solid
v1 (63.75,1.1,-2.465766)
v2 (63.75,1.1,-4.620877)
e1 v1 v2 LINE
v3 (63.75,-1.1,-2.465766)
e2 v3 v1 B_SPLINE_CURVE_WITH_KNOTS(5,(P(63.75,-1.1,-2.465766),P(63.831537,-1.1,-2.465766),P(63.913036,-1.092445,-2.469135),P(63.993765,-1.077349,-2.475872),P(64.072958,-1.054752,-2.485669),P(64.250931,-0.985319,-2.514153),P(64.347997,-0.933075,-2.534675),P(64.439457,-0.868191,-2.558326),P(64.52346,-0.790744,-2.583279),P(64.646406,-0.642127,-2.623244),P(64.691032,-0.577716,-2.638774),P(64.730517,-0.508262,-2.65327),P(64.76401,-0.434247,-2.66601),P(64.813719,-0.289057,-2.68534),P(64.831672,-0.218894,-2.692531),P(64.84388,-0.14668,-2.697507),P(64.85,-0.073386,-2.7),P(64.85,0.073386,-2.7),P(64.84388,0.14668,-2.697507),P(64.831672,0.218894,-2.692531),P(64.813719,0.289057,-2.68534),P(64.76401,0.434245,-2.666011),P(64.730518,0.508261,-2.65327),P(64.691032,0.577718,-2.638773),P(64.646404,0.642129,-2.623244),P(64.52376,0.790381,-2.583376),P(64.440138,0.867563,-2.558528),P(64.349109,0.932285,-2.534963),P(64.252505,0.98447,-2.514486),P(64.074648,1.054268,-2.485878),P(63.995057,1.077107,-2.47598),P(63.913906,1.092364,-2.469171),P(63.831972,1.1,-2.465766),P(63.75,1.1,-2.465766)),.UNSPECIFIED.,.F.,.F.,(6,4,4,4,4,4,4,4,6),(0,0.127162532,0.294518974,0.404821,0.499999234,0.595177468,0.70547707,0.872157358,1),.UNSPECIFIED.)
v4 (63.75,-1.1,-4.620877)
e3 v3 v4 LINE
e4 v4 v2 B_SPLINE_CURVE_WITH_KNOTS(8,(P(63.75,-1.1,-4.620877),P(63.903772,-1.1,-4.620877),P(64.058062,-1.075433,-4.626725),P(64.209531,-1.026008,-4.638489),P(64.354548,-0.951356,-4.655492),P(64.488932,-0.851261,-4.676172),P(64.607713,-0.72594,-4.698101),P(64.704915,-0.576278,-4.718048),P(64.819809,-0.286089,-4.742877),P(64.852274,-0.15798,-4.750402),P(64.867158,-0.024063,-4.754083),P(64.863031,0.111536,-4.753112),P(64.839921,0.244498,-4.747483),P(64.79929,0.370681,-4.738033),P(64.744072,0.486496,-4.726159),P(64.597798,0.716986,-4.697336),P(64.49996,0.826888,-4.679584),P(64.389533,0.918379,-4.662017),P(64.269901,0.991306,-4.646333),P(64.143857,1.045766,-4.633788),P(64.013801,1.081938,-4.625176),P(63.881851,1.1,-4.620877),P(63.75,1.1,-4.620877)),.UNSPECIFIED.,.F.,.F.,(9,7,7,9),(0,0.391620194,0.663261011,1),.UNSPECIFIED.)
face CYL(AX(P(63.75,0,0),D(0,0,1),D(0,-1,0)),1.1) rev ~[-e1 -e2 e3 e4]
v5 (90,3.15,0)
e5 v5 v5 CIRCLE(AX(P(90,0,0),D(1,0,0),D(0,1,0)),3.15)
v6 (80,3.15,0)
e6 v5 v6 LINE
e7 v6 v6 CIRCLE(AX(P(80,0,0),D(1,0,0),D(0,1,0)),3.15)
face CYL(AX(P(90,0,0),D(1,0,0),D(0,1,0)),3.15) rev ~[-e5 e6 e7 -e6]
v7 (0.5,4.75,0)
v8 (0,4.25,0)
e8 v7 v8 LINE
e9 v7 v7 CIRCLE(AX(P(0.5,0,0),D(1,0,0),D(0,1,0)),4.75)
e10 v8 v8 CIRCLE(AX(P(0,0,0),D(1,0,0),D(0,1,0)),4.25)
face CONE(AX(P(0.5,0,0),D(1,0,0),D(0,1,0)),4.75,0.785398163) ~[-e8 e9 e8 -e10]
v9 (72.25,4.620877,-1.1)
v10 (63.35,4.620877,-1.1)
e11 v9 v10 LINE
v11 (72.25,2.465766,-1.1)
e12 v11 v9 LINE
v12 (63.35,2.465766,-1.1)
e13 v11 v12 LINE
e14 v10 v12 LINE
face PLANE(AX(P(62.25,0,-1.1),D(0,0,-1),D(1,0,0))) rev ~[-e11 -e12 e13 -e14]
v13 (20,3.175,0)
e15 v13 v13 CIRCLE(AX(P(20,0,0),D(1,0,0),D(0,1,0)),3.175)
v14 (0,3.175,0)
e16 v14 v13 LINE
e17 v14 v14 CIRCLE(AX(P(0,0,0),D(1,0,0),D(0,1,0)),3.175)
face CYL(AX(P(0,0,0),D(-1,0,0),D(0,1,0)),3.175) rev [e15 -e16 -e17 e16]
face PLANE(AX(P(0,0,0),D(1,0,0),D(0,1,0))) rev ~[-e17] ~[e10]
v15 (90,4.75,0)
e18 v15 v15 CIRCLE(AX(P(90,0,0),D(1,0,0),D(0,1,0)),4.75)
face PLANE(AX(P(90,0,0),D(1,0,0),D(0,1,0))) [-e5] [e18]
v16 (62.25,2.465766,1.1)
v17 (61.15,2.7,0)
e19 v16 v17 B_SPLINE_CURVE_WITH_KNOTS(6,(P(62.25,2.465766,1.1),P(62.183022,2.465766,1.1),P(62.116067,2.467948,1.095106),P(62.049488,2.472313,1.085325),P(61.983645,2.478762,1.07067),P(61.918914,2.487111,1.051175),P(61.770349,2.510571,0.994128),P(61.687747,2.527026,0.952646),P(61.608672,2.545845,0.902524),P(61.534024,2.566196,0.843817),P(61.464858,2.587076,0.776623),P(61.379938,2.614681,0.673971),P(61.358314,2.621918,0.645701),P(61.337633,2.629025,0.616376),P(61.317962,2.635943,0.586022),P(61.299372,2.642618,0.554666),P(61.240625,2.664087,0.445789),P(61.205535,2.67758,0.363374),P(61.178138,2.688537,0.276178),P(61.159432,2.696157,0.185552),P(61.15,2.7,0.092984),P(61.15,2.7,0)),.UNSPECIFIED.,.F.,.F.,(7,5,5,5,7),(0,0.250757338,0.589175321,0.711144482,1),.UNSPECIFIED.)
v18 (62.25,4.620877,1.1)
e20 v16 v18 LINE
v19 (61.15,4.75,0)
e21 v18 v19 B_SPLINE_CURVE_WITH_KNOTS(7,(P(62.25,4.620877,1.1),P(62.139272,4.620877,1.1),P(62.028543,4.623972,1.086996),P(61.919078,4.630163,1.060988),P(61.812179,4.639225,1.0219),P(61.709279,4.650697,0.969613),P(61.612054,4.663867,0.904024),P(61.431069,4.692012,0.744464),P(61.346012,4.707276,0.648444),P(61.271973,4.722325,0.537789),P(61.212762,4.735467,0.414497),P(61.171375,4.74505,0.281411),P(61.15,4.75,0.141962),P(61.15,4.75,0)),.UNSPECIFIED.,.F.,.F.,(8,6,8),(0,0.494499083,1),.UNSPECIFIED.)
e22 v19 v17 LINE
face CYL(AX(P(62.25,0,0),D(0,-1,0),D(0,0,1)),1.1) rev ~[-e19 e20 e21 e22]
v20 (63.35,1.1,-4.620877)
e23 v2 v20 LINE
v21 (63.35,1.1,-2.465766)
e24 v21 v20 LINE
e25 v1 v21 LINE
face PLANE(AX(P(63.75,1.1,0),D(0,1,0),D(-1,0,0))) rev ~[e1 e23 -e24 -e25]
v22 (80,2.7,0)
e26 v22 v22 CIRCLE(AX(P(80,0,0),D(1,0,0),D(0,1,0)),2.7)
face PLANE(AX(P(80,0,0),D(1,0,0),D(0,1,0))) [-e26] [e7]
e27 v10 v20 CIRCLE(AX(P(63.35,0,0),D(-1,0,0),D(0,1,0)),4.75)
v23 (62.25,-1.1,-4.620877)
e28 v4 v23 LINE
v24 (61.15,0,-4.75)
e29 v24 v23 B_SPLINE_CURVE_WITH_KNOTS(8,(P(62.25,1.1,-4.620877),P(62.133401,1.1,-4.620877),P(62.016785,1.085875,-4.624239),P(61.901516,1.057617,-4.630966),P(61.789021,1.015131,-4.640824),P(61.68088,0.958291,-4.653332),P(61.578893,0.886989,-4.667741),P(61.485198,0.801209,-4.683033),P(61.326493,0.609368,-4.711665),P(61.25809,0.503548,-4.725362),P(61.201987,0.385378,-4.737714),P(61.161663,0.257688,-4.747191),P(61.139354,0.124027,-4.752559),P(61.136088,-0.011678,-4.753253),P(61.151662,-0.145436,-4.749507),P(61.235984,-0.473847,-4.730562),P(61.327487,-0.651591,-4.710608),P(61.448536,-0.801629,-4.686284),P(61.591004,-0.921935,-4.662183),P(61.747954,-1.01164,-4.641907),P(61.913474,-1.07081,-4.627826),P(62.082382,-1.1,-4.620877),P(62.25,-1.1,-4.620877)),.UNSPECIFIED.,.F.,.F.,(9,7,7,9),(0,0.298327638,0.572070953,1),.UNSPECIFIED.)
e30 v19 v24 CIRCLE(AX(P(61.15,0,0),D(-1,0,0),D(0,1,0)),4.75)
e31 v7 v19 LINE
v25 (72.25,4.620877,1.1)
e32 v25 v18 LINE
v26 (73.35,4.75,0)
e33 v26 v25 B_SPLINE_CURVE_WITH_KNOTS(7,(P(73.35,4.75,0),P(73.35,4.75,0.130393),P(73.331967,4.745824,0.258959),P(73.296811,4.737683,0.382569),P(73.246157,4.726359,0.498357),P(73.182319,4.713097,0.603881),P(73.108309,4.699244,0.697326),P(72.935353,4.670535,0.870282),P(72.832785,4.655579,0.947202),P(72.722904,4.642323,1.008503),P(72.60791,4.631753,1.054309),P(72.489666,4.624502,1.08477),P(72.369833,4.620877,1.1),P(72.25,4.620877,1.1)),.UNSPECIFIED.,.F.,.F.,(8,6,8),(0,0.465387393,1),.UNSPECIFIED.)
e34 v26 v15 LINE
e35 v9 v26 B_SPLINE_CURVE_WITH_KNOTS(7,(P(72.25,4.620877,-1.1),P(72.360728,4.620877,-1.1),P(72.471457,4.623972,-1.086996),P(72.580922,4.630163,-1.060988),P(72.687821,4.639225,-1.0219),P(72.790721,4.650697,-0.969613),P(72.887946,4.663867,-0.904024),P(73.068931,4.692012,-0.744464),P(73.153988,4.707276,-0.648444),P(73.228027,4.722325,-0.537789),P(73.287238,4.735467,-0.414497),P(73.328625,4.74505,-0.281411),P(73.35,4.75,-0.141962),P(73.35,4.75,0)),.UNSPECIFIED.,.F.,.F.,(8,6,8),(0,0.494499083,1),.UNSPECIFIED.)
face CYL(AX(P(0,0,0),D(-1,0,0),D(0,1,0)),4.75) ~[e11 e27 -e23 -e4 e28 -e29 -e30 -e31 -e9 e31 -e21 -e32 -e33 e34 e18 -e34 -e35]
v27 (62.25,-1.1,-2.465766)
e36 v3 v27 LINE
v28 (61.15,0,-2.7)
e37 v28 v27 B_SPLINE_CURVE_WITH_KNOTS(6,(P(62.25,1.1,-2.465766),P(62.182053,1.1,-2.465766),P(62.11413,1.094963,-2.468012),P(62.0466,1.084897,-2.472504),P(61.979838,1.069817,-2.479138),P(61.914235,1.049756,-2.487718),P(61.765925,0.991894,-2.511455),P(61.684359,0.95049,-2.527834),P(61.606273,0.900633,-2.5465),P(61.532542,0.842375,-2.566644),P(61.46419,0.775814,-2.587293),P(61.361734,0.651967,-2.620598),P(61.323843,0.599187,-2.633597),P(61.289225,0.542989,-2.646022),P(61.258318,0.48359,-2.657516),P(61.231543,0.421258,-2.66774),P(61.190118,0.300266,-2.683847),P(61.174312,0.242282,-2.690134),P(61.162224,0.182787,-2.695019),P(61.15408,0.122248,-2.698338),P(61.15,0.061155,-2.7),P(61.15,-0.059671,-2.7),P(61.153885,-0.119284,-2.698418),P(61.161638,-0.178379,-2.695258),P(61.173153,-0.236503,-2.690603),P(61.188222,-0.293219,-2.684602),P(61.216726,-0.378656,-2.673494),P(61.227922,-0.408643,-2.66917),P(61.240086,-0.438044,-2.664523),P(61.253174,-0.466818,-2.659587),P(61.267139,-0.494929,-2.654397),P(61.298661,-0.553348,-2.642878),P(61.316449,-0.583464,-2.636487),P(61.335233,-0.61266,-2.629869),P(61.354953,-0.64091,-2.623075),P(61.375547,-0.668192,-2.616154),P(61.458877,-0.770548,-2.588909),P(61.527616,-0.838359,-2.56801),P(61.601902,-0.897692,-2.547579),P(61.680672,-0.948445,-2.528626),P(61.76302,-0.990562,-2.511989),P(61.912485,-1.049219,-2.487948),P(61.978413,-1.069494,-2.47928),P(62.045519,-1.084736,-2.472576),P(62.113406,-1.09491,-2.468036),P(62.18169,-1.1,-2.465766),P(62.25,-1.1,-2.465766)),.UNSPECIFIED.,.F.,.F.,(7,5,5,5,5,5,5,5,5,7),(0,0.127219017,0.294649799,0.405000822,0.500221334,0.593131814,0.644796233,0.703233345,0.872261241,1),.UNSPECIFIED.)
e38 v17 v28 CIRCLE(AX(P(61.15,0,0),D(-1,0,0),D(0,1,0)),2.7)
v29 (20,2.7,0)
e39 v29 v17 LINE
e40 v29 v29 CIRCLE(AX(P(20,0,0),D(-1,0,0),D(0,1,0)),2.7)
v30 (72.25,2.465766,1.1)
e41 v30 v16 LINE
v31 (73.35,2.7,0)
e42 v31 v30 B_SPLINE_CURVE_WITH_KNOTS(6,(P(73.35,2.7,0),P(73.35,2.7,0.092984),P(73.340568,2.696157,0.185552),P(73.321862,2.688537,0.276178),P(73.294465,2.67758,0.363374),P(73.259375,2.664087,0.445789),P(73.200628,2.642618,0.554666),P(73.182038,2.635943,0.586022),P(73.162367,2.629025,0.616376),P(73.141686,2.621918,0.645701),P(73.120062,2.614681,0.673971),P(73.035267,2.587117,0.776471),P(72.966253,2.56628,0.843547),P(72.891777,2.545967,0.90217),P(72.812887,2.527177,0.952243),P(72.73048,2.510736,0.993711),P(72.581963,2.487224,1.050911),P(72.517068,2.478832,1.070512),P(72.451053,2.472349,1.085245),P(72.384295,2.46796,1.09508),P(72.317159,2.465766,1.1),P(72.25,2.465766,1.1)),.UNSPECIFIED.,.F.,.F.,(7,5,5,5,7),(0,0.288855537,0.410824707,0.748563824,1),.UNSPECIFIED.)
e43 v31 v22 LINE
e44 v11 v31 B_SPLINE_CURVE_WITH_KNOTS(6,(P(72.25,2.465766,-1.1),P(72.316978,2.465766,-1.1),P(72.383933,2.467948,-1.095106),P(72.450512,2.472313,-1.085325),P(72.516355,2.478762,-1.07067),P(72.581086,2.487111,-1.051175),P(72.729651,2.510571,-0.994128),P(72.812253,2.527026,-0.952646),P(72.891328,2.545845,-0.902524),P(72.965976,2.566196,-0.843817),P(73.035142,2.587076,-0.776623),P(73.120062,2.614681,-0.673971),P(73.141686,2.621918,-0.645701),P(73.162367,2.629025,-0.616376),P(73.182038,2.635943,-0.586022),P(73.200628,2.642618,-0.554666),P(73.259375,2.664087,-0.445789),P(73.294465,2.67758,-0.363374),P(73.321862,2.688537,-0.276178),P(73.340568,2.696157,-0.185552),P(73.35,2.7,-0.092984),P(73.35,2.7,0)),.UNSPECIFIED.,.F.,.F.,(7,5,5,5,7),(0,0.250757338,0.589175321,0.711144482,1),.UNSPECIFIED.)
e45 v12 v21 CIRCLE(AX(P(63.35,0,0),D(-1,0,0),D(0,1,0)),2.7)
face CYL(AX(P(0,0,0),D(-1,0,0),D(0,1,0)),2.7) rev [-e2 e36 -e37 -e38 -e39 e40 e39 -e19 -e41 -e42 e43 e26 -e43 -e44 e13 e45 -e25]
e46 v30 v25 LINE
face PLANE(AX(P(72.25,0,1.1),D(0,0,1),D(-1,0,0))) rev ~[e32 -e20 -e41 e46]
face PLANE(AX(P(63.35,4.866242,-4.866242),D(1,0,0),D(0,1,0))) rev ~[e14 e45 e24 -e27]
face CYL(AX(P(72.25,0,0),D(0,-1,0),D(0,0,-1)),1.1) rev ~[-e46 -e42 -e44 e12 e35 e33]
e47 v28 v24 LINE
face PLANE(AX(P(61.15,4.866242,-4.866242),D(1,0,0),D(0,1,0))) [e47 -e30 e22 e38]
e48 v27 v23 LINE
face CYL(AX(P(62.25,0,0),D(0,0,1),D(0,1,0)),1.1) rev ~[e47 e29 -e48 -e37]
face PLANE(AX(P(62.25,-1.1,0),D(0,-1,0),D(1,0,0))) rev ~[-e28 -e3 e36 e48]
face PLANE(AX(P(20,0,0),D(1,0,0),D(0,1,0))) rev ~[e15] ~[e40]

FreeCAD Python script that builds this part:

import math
import FreeCAD as App
import Part
import Sketcher
from FreeCAD import Vector


def edges_at(feature, points):
    """Names of the edges that pass closest to the given points."""
    edges = feature.Shape.Edges
    near = lambda p: min(range(len(edges)), key=lambda i: edges[i].distToShape(Part.Vertex(*p))[0])
    return sorted({f"Edge{near(p) + 1}" for p in points})

doc = App.newDocument("Part")
body = doc.addObject("PartDesign::Body", "Body")

# Sketch on YZ plane
sketch1 = body.newObject("Sketcher::SketchObject", "Sketch")
sketch1.AttachmentSupport = (doc.getObject("YZ_Plane"), [""])
sketch1.MapMode = "FlatFace"
sketch1.addGeometry(Part.Circle(Vector(0, 0, 0), Vector(0, 0, 1), 4.8), False)
sketch1.addConstraint([
    Sketcher.Constraint("Coincident", 0, 3, -1, 1),
    Sketcher.Constraint("Diameter", 0, 9.5),
])
pad1 = body.newObject("PartDesign::Pad", "Pad")
pad1.Profile = sketch1
pad1.Length = 90

# Sketch on YZ plane
sketch2 = body.newObject("Sketcher::SketchObject", "Sketch001")
sketch2.AttachmentSupport = (doc.getObject("YZ_Plane"), [""])
sketch2.MapMode = "FlatFace"
sketch2.addGeometry(Part.Circle(Vector(0, 0, 0), Vector(0, 0, 1), 2.7), False)
sketch2.addConstraint([
    Sketcher.Constraint("Coincident", 0, 3, -1, 1),
    Sketcher.Constraint("Diameter", 0, 5.4),
])
pocket1 = body.newObject("PartDesign::Pocket", "Pocket")
pocket1.Profile = sketch2
pocket1.Length = 100
pocket1.Reversed = True

# Sketch on YZ plane
sketch3 = body.newObject("Sketcher::SketchObject", "Sketch002")
sketch3.AttachmentSupport = (doc.getObject("YZ_Plane"), [""])
sketch3.MapMode = "FlatFace"
sketch3.addGeometry(Part.Circle(Vector(0, 0, 0), Vector(0, 0, 1), 3.2), False)
sketch3.addConstraint([
    Sketcher.Constraint("Coincident", 0, 3, -1, 1),
    Sketcher.Constraint("Diameter", 0, 6.35),
])
pocket2 = body.newObject("PartDesign::Pocket", "Pocket001")
pocket2.Profile = sketch3
pocket2.Length = 20
pocket2.Reversed = True

# Sketch on YZ plane
sketch4 = body.newObject("Sketcher::SketchObject", "Sketch003")
sketch4.AttachmentSupport = (doc.getObject("YZ_Plane"), [""])
sketch4.MapMode = "FlatFace"
sketch4.AttachmentOffset = App.Placement(Vector(0, 0, 90), App.Rotation())
sketch4.addGeometry([
    Part.Circle(Vector(0, 0, 0), Vector(0, 0, 1), 3.1),
    Part.Circle(Vector(0, 0, 0), Vector(0, 0, 1), 2.7),
], False)
sketch4.addConstraint([
    Sketcher.Constraint("Coincident", 0, 3, -1, 1),
    Sketcher.Constraint("Coincident", 1, 3, -1, 1),
    Sketcher.Constraint("Diameter", 0, 6.3),
    Sketcher.Constraint("Diameter", 1, 5.4),
])
pocket3 = body.newObject("PartDesign::Pocket", "Pocket002")
pocket3.Profile = sketch4
pocket3.Length = 10

# Sketch on XZ plane
sketch5 = body.newObject("Sketcher::SketchObject", "Sketch004")
sketch5.AttachmentSupport = (doc.getObject("XZ_Plane"), [""])
sketch5.MapMode = "FlatFace"
sketch5.addGeometry([
    Part.ArcOfCircle(Part.Circle(Vector(72.2, 0, 0), Vector(0, 0, 1), 1.1), math.radians(-90), math.radians(90)),
    Part.LineSegment(Vector(72.2, 1.1, 0), Vector(62.2, 1.1, 0)),
    Part.ArcOfCircle(Part.Circle(Vector(62.2, 0, 0), Vector(0, 0, 1), 1.1), math.radians(90), math.radians(270)),
    Part.LineSegment(Vector(62.2, -1.1, 0), Vector(72.2, -1.1, 0)),
], False)
sketch5.addConstraint([
    Sketcher.Constraint("Tangent", 0, 2, 1, 1),
    Sketcher.Constraint("Tangent", 1, 2, 2, 1),
    Sketcher.Constraint("Tangent", 2, 2, 3, 1),
    Sketcher.Constraint("Tangent", 3, 2, 0, 1),
    Sketcher.Constraint("Horizontal", 1),
    Sketcher.Constraint("Horizontal", 3),
    Sketcher.Constraint("PointOnObject", 0, 3, -1),
    Sketcher.Constraint("Radius", 0, 1.1),
    Sketcher.Constraint("DistanceX", 1, 2, 1, 1, 10.0),
    Sketcher.Constraint("DistanceX", -1, 1, 0, 3, 72.25),
])
pocket4 = body.newObject("PartDesign::Pocket", "Pocket003")
pocket4.Profile = sketch5
pocket4.Length = 25

# Sketch on XY plane
sketch6 = body.newObject("Sketcher::SketchObject", "Sketch005")
sketch6.AttachmentSupport = (doc.getObject("XY_Plane"), [""])
sketch6.MapMode = "FlatFace"
sketch6.addGeometry([
    Part.ArcOfCircle(Part.Circle(Vector(62.2, 0, 0), Vector(0, 0, 1), 1.1), math.radians(90), math.radians(270)),
    Part.LineSegment(Vector(62.2, -1.1, 0), Vector(63.8, -1.1, 0)),
    Part.ArcOfCircle(Part.Circle(Vector(63.8, 0, 0), Vector(0, 0, 1), 1.1), math.radians(-90), math.radians(90)),
    Part.LineSegment(Vector(63.8, 1.1, 0), Vector(62.2, 1.1, 0)),
], False)
sketch6.addConstraint([
    Sketcher.Constraint("Tangent", 0, 2, 1, 1),
    Sketcher.Constraint("Tangent", 1, 2, 2, 1),
    Sketcher.Constraint("Tangent", 2, 2, 3, 1),
    Sketcher.Constraint("Tangent", 3, 2, 0, 1),
    Sketcher.Constraint("Horizontal", 1),
    Sketcher.Constraint("Horizontal", 3),
    Sketcher.Constraint("PointOnObject", 0, 3, -1),
    Sketcher.Constraint("Radius", 0, 1.1),
    Sketcher.Constraint("DistanceX", 1, 1, 1, 2, 1.5),
    Sketcher.Constraint("DistanceX", -1, 1, 0, 3, 62.25),
])
pocket5 = body.newObject("PartDesign::Pocket", "Pocket004")
pocket5.Profile = sketch6
pocket5.Length = 25

# Sketch on YZ plane
sketch7 = body.newObject("Sketcher::SketchObject", "Sketch006")
sketch7.AttachmentSupport = (doc.getObject("YZ_Plane"), [""])
sketch7.MapMode = "FlatFace"
sketch7.AttachmentOffset = App.Placement(Vector(0, 0, 62.25), App.Rotation())
sketch7.addGeometry([
    Part.LineSegment(Vector(0, 0, 0), Vector(0, -12, 0)),
    Part.ArcOfCircle(Part.Circle(Vector(0, 0, 0), Vector(0, 0, 1), 12), math.radians(-90), math.radians(0)),
    Part.LineSegment(Vector(12, 0, 0), Vector(0, 0, 0)),
], False)
sketch7.addConstraint([
    Sketcher.Constraint("Coincident", 0, 2, 1, 1),
    Sketcher.Constraint("Coincident", 1, 2, 2, 1),
    Sketcher.Constraint("Coincident", 2, 2, 0, 1),
    Sketcher.Constraint("Vertical", 0),
    Sketcher.Constraint("Horizontal", 2),
    Sketcher.Constraint("Coincident", 1, 3, -1, 1),
    Sketcher.Constraint("Coincident", 2, 2, -1, 1),
    Sketcher.Constraint("Radius", 1, 11.794145),
])
pocket6 = body.newObject("PartDesign::Pocket", "Pocket005")
pocket6.Profile = sketch7
pocket6.Length = 2.2
pocket6.Midplane = True
doc.recompute()

chamfer = body.newObject("PartDesign::Chamfer", "Chamfer")
chamfer.Base = (pocket6, edges_at(pocket6, [(0, -4.75, 0)]))
chamfer.Size = 0.5

doc.recompute()
